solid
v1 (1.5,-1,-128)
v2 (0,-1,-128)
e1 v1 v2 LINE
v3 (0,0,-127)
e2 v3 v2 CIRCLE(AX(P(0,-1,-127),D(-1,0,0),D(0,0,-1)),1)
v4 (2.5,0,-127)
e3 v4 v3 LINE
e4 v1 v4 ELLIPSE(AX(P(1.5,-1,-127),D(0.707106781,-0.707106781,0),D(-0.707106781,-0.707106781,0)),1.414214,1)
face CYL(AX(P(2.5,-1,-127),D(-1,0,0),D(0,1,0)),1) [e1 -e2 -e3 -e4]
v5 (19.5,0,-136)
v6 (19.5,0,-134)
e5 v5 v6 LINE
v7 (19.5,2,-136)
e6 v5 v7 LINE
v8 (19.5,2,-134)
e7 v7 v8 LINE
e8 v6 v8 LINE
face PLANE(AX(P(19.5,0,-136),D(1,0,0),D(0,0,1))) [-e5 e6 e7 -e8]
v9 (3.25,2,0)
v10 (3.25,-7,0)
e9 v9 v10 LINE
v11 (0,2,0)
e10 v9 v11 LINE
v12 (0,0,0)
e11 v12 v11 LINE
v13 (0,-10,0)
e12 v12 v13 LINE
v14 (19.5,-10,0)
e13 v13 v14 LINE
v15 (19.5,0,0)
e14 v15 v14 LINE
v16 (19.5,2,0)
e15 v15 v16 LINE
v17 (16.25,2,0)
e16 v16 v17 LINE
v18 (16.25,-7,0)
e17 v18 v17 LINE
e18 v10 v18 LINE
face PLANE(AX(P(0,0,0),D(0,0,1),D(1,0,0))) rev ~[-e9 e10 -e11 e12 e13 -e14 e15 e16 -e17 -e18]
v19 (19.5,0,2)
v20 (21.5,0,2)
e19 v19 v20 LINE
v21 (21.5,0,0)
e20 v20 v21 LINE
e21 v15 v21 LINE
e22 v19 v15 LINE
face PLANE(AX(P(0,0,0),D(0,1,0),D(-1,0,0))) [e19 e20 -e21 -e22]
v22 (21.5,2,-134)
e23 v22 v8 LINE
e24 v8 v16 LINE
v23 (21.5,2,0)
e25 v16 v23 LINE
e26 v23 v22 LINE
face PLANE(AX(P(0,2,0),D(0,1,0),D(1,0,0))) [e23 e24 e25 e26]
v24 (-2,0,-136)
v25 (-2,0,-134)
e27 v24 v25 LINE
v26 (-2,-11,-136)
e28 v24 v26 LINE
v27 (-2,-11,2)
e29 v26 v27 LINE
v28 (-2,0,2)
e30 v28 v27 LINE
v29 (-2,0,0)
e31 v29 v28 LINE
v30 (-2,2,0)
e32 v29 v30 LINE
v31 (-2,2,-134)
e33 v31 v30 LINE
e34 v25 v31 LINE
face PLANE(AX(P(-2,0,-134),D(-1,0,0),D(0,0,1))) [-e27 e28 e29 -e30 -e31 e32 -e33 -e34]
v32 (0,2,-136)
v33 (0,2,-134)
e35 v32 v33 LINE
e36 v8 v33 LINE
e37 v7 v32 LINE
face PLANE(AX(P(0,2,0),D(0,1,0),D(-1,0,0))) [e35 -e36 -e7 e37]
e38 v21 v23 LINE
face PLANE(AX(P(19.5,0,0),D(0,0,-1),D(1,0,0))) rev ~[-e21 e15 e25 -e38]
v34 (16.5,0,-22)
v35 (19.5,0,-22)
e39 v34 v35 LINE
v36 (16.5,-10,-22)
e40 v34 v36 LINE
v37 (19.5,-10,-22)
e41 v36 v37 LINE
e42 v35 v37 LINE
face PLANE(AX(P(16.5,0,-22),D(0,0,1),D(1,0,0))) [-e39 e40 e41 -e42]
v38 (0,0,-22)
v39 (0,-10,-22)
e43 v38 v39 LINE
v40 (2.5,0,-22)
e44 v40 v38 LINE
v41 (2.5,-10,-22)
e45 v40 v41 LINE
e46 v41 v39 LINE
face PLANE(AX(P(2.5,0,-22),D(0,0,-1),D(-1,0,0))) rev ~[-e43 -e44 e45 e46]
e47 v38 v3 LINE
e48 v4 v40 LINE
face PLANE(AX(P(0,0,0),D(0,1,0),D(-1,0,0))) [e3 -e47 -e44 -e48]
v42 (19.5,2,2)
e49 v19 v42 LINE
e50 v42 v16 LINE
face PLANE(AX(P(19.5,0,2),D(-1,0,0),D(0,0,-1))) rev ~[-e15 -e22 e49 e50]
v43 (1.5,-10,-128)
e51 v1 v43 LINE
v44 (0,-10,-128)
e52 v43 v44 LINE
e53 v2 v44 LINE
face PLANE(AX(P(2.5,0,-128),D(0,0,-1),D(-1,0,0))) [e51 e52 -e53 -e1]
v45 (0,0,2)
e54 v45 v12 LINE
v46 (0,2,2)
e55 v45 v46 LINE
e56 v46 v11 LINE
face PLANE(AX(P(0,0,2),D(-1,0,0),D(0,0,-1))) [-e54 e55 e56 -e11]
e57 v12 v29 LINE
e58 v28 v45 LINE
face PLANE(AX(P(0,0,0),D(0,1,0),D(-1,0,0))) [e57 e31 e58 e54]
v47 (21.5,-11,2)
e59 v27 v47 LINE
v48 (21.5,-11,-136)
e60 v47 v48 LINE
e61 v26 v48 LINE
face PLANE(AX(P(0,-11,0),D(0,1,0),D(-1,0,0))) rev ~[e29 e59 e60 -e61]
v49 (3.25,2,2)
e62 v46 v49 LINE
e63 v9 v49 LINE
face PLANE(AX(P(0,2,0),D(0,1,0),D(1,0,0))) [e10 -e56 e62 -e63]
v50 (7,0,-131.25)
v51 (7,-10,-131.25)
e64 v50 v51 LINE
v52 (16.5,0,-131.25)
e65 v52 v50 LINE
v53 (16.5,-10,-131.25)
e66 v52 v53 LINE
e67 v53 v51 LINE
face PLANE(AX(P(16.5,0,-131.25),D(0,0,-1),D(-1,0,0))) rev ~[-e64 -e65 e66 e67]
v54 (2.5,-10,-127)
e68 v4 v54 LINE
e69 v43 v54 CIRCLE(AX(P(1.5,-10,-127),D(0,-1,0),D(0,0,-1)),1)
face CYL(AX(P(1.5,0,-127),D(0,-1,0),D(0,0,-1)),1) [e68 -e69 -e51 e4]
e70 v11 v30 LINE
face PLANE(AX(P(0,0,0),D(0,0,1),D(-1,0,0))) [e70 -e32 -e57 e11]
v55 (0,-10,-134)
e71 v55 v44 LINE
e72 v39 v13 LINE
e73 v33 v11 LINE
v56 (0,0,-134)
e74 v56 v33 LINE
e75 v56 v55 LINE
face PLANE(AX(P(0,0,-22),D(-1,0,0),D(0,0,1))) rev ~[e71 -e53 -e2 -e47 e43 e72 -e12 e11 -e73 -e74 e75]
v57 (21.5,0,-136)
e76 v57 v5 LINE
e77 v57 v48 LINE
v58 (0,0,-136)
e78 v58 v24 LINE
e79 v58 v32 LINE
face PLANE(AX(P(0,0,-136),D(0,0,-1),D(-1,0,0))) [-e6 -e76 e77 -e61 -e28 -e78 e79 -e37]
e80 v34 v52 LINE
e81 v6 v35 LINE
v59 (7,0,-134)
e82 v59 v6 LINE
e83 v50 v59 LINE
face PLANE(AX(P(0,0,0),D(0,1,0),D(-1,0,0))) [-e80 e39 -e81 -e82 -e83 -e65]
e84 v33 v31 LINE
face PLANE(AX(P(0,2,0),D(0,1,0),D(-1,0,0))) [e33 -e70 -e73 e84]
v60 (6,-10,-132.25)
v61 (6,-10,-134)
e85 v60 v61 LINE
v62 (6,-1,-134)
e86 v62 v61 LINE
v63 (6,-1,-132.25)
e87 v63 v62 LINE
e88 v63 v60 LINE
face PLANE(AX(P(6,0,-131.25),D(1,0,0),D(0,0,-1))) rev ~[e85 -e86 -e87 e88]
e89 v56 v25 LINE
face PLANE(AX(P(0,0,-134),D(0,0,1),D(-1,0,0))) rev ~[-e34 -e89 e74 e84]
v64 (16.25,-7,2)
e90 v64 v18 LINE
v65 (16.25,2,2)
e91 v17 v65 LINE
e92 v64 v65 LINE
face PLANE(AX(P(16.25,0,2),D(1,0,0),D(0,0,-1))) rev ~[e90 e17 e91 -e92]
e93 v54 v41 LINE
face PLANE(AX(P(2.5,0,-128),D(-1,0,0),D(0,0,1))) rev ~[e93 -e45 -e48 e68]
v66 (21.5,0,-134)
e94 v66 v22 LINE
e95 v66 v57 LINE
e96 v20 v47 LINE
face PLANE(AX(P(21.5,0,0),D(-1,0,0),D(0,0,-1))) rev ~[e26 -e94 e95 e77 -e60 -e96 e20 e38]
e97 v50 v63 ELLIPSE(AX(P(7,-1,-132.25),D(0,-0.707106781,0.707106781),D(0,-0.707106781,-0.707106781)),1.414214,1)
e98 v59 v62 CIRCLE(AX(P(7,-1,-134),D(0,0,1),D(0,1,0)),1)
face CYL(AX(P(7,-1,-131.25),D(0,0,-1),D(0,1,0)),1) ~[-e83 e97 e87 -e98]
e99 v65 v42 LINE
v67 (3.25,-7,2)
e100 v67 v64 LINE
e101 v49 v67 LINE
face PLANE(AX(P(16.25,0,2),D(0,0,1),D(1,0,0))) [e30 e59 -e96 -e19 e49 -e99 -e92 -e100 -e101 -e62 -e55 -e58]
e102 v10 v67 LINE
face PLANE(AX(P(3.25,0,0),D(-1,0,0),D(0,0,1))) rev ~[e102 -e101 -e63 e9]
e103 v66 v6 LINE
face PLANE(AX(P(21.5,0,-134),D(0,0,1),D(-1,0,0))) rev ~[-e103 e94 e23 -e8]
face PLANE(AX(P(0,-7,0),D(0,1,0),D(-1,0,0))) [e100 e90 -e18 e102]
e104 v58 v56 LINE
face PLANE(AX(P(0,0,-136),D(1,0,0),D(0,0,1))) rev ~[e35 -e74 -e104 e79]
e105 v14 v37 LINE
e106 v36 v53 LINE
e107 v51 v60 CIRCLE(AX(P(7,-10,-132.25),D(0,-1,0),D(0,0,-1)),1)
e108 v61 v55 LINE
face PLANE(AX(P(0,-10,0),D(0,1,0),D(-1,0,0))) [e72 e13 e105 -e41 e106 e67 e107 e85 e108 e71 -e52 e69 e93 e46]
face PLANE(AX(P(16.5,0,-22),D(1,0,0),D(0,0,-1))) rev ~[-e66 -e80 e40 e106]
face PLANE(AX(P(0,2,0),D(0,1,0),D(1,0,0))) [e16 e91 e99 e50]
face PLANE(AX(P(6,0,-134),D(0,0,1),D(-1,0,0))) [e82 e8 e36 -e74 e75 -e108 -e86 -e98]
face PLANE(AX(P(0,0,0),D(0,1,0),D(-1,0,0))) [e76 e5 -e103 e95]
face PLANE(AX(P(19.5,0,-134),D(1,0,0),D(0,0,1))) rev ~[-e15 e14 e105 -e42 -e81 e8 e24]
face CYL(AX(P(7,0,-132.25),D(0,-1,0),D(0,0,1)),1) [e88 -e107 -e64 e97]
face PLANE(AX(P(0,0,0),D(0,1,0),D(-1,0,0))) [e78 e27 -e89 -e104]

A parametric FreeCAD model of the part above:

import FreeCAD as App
import Part
import Sketcher
from FreeCAD import Vector
Q = App.Units.Quantity


def edges_at(feature, points):
    """Names of the edges that pass closest to the given points."""
    edges = feature.Shape.Edges
    near = lambda p: min(range(len(edges)), key=lambda i: edges[i].distToShape(Part.Vertex(*p))[0])
    return sorted({f"Edge{near(p) + 1}" for p in points})

doc = App.newDocument("Part")
params = doc.addObject("Spreadsheet::Sheet", "Params")
for row, (alias, value) in enumerate([
    ("sketch1_height", "138 mm"),
    ("sketch1_width", "23.5 mm"),
    ("pad1_length", "11 mm"),
    ("sketch2_width", "6 mm"),
    ("sketch2_height", "22 mm"),
    ("sketch2_width2", "19.5 mm"),
    ("sketch2_width3", "2.5 mm"),
    ("sketch2_height2", "109.25 mm"),
    ("pocket1_length", "10 mm"),
    ("fillet_radius", "1 mm"),
    ("sketch3_width", "13 mm"),
    ("sketch3_height", "2 mm"),
    ("pocket2_length", "7 mm"),
    ("sketch4_width", "2 mm"),
    ("sketch4_height", "134 mm"),
    ("sketch4_width2", "19.5 mm"),
    ("pad2_length", "2 mm"),
    ("sketch5_width", "2 mm"),
    ("sketch5_height", "134 mm"),
    ("sketch5_width2", "3.25 mm"),
    ("pad3_length", "2 mm"),
], start=1):
    params.set(f"A{row}", alias)
    params.set(f"B{row}", "=" + value)
    params.setAlias(f"B{row}", alias)

body = doc.addObject("PartDesign::Body", "Body")

sketch1 = body.newObject("Sketcher::SketchObject", "Sketch")
sketch1.AttachmentSupport = (doc.getObject("XZ_Plane"), [""])
sketch1.MapMode = "FlatFace"
sketch1.addGeometry(Part.LineSegment(Vector(-2, 2, 0), Vector(21.5, 2, 0)), False)
sketch1.addGeometry(Part.LineSegment(Vector(21.5, 2, 0), Vector(21.5, -136, 0)), False)
sketch1.addGeometry(Part.LineSegment(Vector(21.5, -136, 0), Vector(-2, -136, 0)), False)
sketch1.addGeometry(Part.LineSegment(Vector(-2, -136, 0), Vector(-2, 2, 0)), False)
sketch1.addConstraint(Sketcher.Constraint("Coincident", 0, 2, 1, 1))
sketch1.addConstraint(Sketcher.Constraint("Coincident", 1, 2, 2, 1))
sketch1.addConstraint(Sketcher.Constraint("Coincident", 2, 2, 3, 1))
sketch1.addConstraint(Sketcher.Constraint("Coincident", 3, 2, 0, 1))
sketch1.addConstraint(Sketcher.Constraint("Horizontal", 0))
sketch1.addConstraint(Sketcher.Constraint("Vertical", 1))
sketch1.addConstraint(Sketcher.Constraint("Horizontal", 2))
sketch1.addConstraint(Sketcher.Constraint("Vertical", 3))
sketch1.addConstraint(Sketcher.Constraint("DistanceY", -1, 1, 0, 2, Q("2 mm")))
sketch1.addConstraint(Sketcher.Constraint("DistanceX", 2, 2, -1, 1, Q("2 mm")))
sketch1.addConstraint(Sketcher.Constraint("DistanceY", 1, 2, 1, 1, Q("138 mm")))
sketch1.addConstraint(Sketcher.Constraint("DistanceX", 0, 1, 0, 2, Q("23.5 mm")))
sketch1.setExpression("Constraints[10]", "Params.sketch1_height")
sketch1.setExpression("Constraints[11]", "Params.sketch1_width")
pad1 = body.newObject("PartDesign::Pad", "Pad")
pad1.Profile = sketch1
pad1.setExpression("Length", "Params.pad1_length")

sketch2 = body.newObject("Sketcher::SketchObject", "Sketch001")
sketch2.AttachmentSupport = (doc.getObject("XZ_Plane"), [""])
sketch2.MapMode = "FlatFace"
sketch2.addGeometry(Part.LineSegment(Vector(0, -22, 0), Vector(0, 0, 0)), False)
sketch2.addGeometry(Part.LineSegment(Vector(0, 0, 0), Vector(19.5, 0, 0)), False)
sketch2.addGeometry(Part.LineSegment(Vector(19.5, 0, 0), Vector(19.5, -22, 0)), False)
sketch2.addGeometry(Part.LineSegment(Vector(19.5, -22, 0), Vector(16.5, -22, 0)), False)
sketch2.addGeometry(Part.LineSegment(Vector(16.5, -22, 0), Vector(16.5, -131.25, 0)), False)
sketch2.addGeometry(Part.LineSegment(Vector(16.5, -131.25, 0), Vector(6, -131.25, 0)), False)
sketch2.addGeometry(Part.LineSegment(Vector(6, -131.25, 0), Vector(6, -134, 0)), False)
sketch2.addGeometry(Part.LineSegment(Vector(6, -134, 0), Vector(0, -134, 0)), False)
sketch2.addGeometry(Part.LineSegment(Vector(0, -134, 0), Vector(0, -128, 0)), False)
sketch2.addGeometry(Part.LineSegment(Vector(0, -128, 0), Vector(2.5, -128, 0)), False)
sketch2.addGeometry(Part.LineSegment(Vector(2.5, -128, 0), Vector(2.5, -22, 0)), False)
sketch2.addGeometry(Part.LineSegment(Vector(2.5, -22, 0), Vector(0, -22, 0)), False)
sketch2.addConstraint(Sketcher.Constraint("Coincident", 0, 2, 1, 1))
sketch2.addConstraint(Sketcher.Constraint("Coincident", 1, 2, 2, 1))
sketch2.addConstraint(Sketcher.Constraint("Coincident", 2, 2, 3, 1))
sketch2.addConstraint(Sketcher.Constraint("Coincident", 3, 2, 4, 1))
sketch2.addConstraint(Sketcher.Constraint("Coincident", 4, 2, 5, 1))
sketch2.addConstraint(Sketcher.Constraint("Coincident", 5, 2, 6, 1))
sketch2.addConstraint(Sketcher.Constraint("Coincident", 6, 2, 7, 1))
sketch2.addConstraint(Sketcher.Constraint("Coincident", 7, 2, 8, 1))
sketch2.addConstraint(Sketcher.Constraint("Coincident", 8, 2, 9, 1))
sketch2.addConstraint(Sketcher.Constraint("Coincident", 9, 2, 10, 1))
sketch2.addConstraint(Sketcher.Constraint("Coincident", 10, 2, 11, 1))
sketch2.addConstraint(Sketcher.Constraint("Coincident", 11, 2, 0, 1))
sketch2.addConstraint(Sketcher.Constraint("Vertical", 0))
sketch2.addConstraint(Sketcher.Constraint("Horizontal", 1))
sketch2.addConstraint(Sketcher.Constraint("Vertical", 2))
sketch2.addConstraint(Sketcher.Constraint("Horizontal", 3))
sketch2.addConstraint(Sketcher.Constraint("Vertical", 4))
sketch2.addConstraint(Sketcher.Constraint("Horizontal", 5))
sketch2.addConstraint(Sketcher.Constraint("Vertical", 6))
sketch2.addConstraint(Sketcher.Constraint("Horizontal", 7))
sketch2.addConstraint(Sketcher.Constraint("Vertical", 8))
sketch2.addConstraint(Sketcher.Constraint("Horizontal", 9))
sketch2.addConstraint(Sketcher.Constraint("Vertical", 10))
sketch2.addConstraint(Sketcher.Constraint("Horizontal", 11))
sketch2.addConstraint(Sketcher.Constraint("Coincident", 0, 2, -1, 1))
sketch2.addConstraint(Sketcher.Constraint("PointOnObject", 7, 2, -2))
sketch2.addConstraint(Sketcher.Constraint("Horizontal", 3, 2, 10, 2))
sketch2.addConstraint(Sketcher.Constraint("Equal", 7, 8))
sketch2.addConstraint(Sketcher.Constraint("DistanceX", 7, 2, 7, 1, Q("6 mm")))
sketch2.addConstraint(Sketcher.Constraint("DistanceY", 0, 1, 0, 2, Q("22 mm")))
sketch2.addConstraint(Sketcher.Constraint("DistanceX", 1, 1, 1, 2, Q("19.5 mm")))
sketch2.addConstraint(Sketcher.Constraint("DistanceX", 9, 1, 9, 2, Q("2.5 mm")))
sketch2.addConstraint(Sketcher.Constraint("DistanceY", 6, 2, -1, 1, Q("134 mm")))
sketch2.addConstraint(Sketcher.Constraint("DistanceX", 9, 2, 4, 2, Q("14 mm")))
sketch2.addConstraint(Sketcher.Constraint("DistanceY", 4, 2, 4, 1, Q("109.25 mm")))
sketch2.setExpression("Constraints[28]", "Params.sketch2_width")
sketch2.setExpression("Constraints[29]", "Params.sketch2_height")
sketch2.setExpression("Constraints[30]", "Params.sketch2_width2")
sketch2.setExpression("Constraints[31]", "Params.sketch2_width3")
sketch2.setExpression("Constraints[34]", "Params.sketch2_height2")
pocket1 = body.newObject("PartDesign::Pocket", "Pocket")
pocket1.Profile = sketch2
pocket1.setExpression("Length", "Params.pocket1_length")
pocket1.Reversed = True
doc.recompute()

fillet = body.newObject("PartDesign::Fillet", "Fillet")
fillet.Base = (pocket1, edges_at(pocket1, [
    (2.5, -5, -128),
    (1.25, 0, -128),
    (6, 0, -132.625),
    (6, -5, -131.25),
]))
fillet.setExpression("Radius", "Params.fillet_radius")

sketch3 = body.newObject("Sketcher::SketchObject", "Sketch002")
sketch3.AttachmentSupport = (doc.getObject("XZ_Plane"), [""])
sketch3.MapMode = "FlatFace"
sketch3.addGeometry(Part.LineSegment(Vector(16.25, 0, 0), Vector(3.25, 0, 0)), False)
sketch3.addGeometry(Part.LineSegment(Vector(3.25, 0, 0), Vector(3.25, 2, 0)), False)
sketch3.addGeometry(Part.LineSegment(Vector(3.25, 2, 0), Vector(16.25, 2, 0)), False)
sketch3.addGeometry(Part.LineSegment(Vector(16.25, 2, 0), Vector(16.25, 0, 0)), False)
sketch3.addConstraint(Sketcher.Constraint("Coincident", 0, 2, 1, 1))
sketch3.addConstraint(Sketcher.Constraint("Coincident", 1, 2, 2, 1))
sketch3.addConstraint(Sketcher.Constraint("Coincident", 2, 2, 3, 1))
sketch3.addConstraint(Sketcher.Constraint("Coincident", 3, 2, 0, 1))
sketch3.addConstraint(Sketcher.Constraint("Horizontal", 0))
sketch3.addConstraint(Sketcher.Constraint("Vertical", 1))
sketch3.addConstraint(Sketcher.Constraint("Horizontal", 2))
sketch3.addConstraint(Sketcher.Constraint("Vertical", 3))
sketch3.addConstraint(Sketcher.Constraint("PointOnObject", 0, 2, -1))
sketch3.addConstraint(Sketcher.Constraint("DistanceX", 0, 2, 0, 1, Q("13 mm")))
sketch3.addConstraint(Sketcher.Constraint("DistanceY", 1, 1, 1, 2, Q("2 mm")))
sketch3.addConstraint(Sketcher.Constraint("DistanceX", -1, 1, 0, 2, Q("3.25 mm")))
sketch3.setExpression("Constraints[9]", "Params.sketch3_width")
sketch3.setExpression("Constraints[10]", "Params.sketch3_height")
pocket2 = body.newObject("PartDesign::Pocket", "Pocket001")
pocket2.Profile = sketch3
pocket2.setExpression("Length", "Params.pocket2_length")
pocket2.Reversed = True

sketch4 = body.newObject("Sketcher::SketchObject", "Sketch003")
sketch4.AttachmentSupport = (doc.getObject("XZ_Plane"), [""])
sketch4.MapMode = "FlatFace"
sketch4.addGeometry(Part.LineSegment(Vector(-2, 0, 0), Vector(0, 0, 0)), False)
sketch4.addGeometry(Part.LineSegment(Vector(0, 0, 0), Vector(0, -134, 0)), False)
sketch4.addGeometry(Part.LineSegment(Vector(0, -134, 0), Vector(-2, -134, 0)), False)
sketch4.addGeometry(Part.LineSegment(Vector(-2, -134, 0), Vector(-2, 0, 0)), False)
sketch4.addGeometry(Part.LineSegment(Vector(0, -136, 0), Vector(0, -134, 0)), False)
sketch4.addGeometry(Part.LineSegment(Vector(0, -134, 0), Vector(19.5, -134, 0)), False)
sketch4.addGeometry(Part.LineSegment(Vector(19.5, -134, 0), Vector(19.5, -136, 0)), False)
sketch4.addGeometry(Part.LineSegment(Vector(19.5, -136, 0), Vector(0, -136, 0)), False)
sketch4.addConstraint(Sketcher.Constraint("Coincident", 0, 2, 1, 1))
sketch4.addConstraint(Sketcher.Constraint("Coincident", 1, 2, 2, 1))
sketch4.addConstraint(Sketcher.Constraint("Coincident", 2, 2, 3, 1))
sketch4.addConstraint(Sketcher.Constraint("Coincident", 3, 2, 0, 1))
sketch4.addConstraint(Sketcher.Constraint("Coincident", 4, 2, 5, 1))
sketch4.addConstraint(Sketcher.Constraint("Coincident", 5, 2, 6, 1))
sketch4.addConstraint(Sketcher.Constraint("Coincident", 6, 2, 7, 1))
sketch4.addConstraint(Sketcher.Constraint("Coincident", 7, 2, 4, 1))
sketch4.addConstraint(Sketcher.Constraint("Horizontal", 0))
sketch4.addConstraint(Sketcher.Constraint("Vertical", 1))
sketch4.addConstraint(Sketcher.Constraint("Horizontal", 2))
sketch4.addConstraint(Sketcher.Constraint("Vertical", 3))
sketch4.addConstraint(Sketcher.Constraint("Vertical", 4))
sketch4.addConstraint(Sketcher.Constraint("Horizontal", 5))
sketch4.addConstraint(Sketcher.Constraint("Vertical", 6))
sketch4.addConstraint(Sketcher.Constraint("Horizontal", 7))
sketch4.addConstraint(Sketcher.Constraint("Coincident", 0, 2, -1, 1))
sketch4.addConstraint(Sketcher.Constraint("Coincident", 4, 2, 1, 2))
sketch4.addConstraint(Sketcher.Constraint("Equal", 2, 4))
sketch4.addConstraint(Sketcher.Constraint("DistanceX", 0, 1, 0, 2, Q("2 mm")))
sketch4.addConstraint(Sketcher.Constraint("DistanceY", 1, 2, 1, 1, Q("134 mm")))
sketch4.addConstraint(Sketcher.Constraint("DistanceX", 5, 1, 5, 2, Q("19.5 mm")))
sketch4.setExpression("Constraints[19]", "Params.sketch4_width")
sketch4.setExpression("Constraints[20]", "Params.sketch4_height")
sketch4.setExpression("Constraints[21]", "Params.sketch4_width2")
pad2 = body.newObject("PartDesign::Pad", "Pad001")
pad2.Profile = sketch4
pad2.setExpression("Length", "Params.pad2_length")
pad2.Reversed = True

sketch5 = body.newObject("Sketcher::SketchObject", "Sketch004")
sketch5.AttachmentSupport = (doc.getObject("XZ_Plane"), [""])
sketch5.MapMode = "FlatFace"
sketch5.addGeometry(Part.LineSegment(Vector(19.5, 2, 0), Vector(19.5, 0, 0)), False)
sketch5.addGeometry(Part.LineSegment(Vector(19.5, 0, 0), Vector(16.25, 0, 0)), False)
sketch5.addGeometry(Part.LineSegment(Vector(16.25, 0, 0), Vector(16.25, 2, 0)), False)
sketch5.addGeometry(Part.LineSegment(Vector(16.25, 2, 0), Vector(19.5, 2, 0)), False)
sketch5.addGeometry(Part.LineSegment(Vector(19.5, -134, 0), Vector(19.5, 0, 0)), False)
sketch5.addGeometry(Part.LineSegment(Vector(19.5, 0, 0), Vector(21.5, 0, 0)), False)
sketch5.addGeometry(Part.LineSegment(Vector(21.5, 0, 0), Vector(21.5, -134, 0)), False)
sketch5.addGeometry(Part.LineSegment(Vector(21.5, -134, 0), Vector(19.5, -134, 0)), False)
sketch5.addGeometry(Part.LineSegment(Vector(3.25, 2, 0), Vector(3.25, 0, 0)), False)
sketch5.addGeometry(Part.LineSegment(Vector(3.25, 0, 0), Vector(0, 0, 0)), False)
sketch5.addGeometry(Part.LineSegment(Vector(0, 0, 0), Vector(0, 2, 0)), False)
sketch5.addGeometry(Part.LineSegment(Vector(0, 2, 0), Vector(3.25, 2, 0)), False)
sketch5.addConstraint(Sketcher.Constraint("Coincident", 0, 2, 1, 1))
sketch5.addConstraint(Sketcher.Constraint("Coincident", 1, 2, 2, 1))
sketch5.addConstraint(Sketcher.Constraint("Coincident", 2, 2, 3, 1))
sketch5.addConstraint(Sketcher.Constraint("Coincident", 3, 2, 0, 1))
sketch5.addConstraint(Sketcher.Constraint("Coincident", 4, 2, 5, 1))
sketch5.addConstraint(Sketcher.Constraint("Coincident", 5, 2, 6, 1))
sketch5.addConstraint(Sketcher.Constraint("Coincident", 6, 2, 7, 1))
sketch5.addConstraint(Sketcher.Constraint("Coincident", 7, 2, 4, 1))
sketch5.addConstraint(Sketcher.Constraint("Coincident", 8, 2, 9, 1))
sketch5.addConstraint(Sketcher.Constraint("Coincident", 9, 2, 10, 1))
sketch5.addConstraint(Sketcher.Constraint("Coincident", 10, 2, 11, 1))
sketch5.addConstraint(Sketcher.Constraint("Coincident", 11, 2, 8, 1))
sketch5.addConstraint(Sketcher.Constraint("Vertical", 0))
sketch5.addConstraint(Sketcher.Constraint("Horizontal", 1))
sketch5.addConstraint(Sketcher.Constraint("Vertical", 2))
sketch5.addConstraint(Sketcher.Constraint("Horizontal", 3))
sketch5.addConstraint(Sketcher.Constraint("Vertical", 4))
sketch5.addConstraint(Sketcher.Constraint("Horizontal", 5))
sketch5.addConstraint(Sketcher.Constraint("Vertical", 6))
sketch5.addConstraint(Sketcher.Constraint("Horizontal", 7))
sketch5.addConstraint(Sketcher.Constraint("Vertical", 8))
sketch5.addConstraint(Sketcher.Constraint("Horizontal", 9))
sketch5.addConstraint(Sketcher.Constraint("Vertical", 10))
sketch5.addConstraint(Sketcher.Constraint("Horizontal", 11))
sketch5.addConstraint(Sketcher.Constraint("Coincident", 9, 2, -1, 1))
sketch5.addConstraint(Sketcher.Constraint("Coincident", 4, 2, 0, 2))
sketch5.addConstraint(Sketcher.Constraint("PointOnObject", 0, 2, -1))
sketch5.addConstraint(Sketcher.Constraint("Horizontal", 3, 2, 10, 2))
sketch5.addConstraint(Sketcher.Constraint("Equal", 3, 9))
sketch5.addConstraint(Sketcher.Constraint("Equal", 7, 0))
sketch5.addConstraint(Sketcher.Constraint("DistanceX", 5, 1, 5, 2, Q("2 mm")))
sketch5.addConstraint(Sketcher.Constraint("DistanceY", 4, 1, 4, 2, Q("134 mm")))
sketch5.addConstraint(Sketcher.Constraint("DistanceX", 8, 2, 1, 2, Q("13 mm")))
sketch5.addConstraint(Sketcher.Constraint("DistanceX", 1, 2, 1, 1, Q("3.25 mm")))
sketch5.setExpression("Constraints[30]", "Params.sketch5_width")
sketch5.setExpression("Constraints[31]", "Params.sketch5_height")
sketch5.setExpression("Constraints[33]", "Params.sketch5_width2")
pad3 = body.newObject("PartDesign::Pad", "Pad002")
pad3.Profile = sketch5
pad3.setExpression("Length", "Params.pad3_length")
pad3.Reversed = True

doc.recompute()
